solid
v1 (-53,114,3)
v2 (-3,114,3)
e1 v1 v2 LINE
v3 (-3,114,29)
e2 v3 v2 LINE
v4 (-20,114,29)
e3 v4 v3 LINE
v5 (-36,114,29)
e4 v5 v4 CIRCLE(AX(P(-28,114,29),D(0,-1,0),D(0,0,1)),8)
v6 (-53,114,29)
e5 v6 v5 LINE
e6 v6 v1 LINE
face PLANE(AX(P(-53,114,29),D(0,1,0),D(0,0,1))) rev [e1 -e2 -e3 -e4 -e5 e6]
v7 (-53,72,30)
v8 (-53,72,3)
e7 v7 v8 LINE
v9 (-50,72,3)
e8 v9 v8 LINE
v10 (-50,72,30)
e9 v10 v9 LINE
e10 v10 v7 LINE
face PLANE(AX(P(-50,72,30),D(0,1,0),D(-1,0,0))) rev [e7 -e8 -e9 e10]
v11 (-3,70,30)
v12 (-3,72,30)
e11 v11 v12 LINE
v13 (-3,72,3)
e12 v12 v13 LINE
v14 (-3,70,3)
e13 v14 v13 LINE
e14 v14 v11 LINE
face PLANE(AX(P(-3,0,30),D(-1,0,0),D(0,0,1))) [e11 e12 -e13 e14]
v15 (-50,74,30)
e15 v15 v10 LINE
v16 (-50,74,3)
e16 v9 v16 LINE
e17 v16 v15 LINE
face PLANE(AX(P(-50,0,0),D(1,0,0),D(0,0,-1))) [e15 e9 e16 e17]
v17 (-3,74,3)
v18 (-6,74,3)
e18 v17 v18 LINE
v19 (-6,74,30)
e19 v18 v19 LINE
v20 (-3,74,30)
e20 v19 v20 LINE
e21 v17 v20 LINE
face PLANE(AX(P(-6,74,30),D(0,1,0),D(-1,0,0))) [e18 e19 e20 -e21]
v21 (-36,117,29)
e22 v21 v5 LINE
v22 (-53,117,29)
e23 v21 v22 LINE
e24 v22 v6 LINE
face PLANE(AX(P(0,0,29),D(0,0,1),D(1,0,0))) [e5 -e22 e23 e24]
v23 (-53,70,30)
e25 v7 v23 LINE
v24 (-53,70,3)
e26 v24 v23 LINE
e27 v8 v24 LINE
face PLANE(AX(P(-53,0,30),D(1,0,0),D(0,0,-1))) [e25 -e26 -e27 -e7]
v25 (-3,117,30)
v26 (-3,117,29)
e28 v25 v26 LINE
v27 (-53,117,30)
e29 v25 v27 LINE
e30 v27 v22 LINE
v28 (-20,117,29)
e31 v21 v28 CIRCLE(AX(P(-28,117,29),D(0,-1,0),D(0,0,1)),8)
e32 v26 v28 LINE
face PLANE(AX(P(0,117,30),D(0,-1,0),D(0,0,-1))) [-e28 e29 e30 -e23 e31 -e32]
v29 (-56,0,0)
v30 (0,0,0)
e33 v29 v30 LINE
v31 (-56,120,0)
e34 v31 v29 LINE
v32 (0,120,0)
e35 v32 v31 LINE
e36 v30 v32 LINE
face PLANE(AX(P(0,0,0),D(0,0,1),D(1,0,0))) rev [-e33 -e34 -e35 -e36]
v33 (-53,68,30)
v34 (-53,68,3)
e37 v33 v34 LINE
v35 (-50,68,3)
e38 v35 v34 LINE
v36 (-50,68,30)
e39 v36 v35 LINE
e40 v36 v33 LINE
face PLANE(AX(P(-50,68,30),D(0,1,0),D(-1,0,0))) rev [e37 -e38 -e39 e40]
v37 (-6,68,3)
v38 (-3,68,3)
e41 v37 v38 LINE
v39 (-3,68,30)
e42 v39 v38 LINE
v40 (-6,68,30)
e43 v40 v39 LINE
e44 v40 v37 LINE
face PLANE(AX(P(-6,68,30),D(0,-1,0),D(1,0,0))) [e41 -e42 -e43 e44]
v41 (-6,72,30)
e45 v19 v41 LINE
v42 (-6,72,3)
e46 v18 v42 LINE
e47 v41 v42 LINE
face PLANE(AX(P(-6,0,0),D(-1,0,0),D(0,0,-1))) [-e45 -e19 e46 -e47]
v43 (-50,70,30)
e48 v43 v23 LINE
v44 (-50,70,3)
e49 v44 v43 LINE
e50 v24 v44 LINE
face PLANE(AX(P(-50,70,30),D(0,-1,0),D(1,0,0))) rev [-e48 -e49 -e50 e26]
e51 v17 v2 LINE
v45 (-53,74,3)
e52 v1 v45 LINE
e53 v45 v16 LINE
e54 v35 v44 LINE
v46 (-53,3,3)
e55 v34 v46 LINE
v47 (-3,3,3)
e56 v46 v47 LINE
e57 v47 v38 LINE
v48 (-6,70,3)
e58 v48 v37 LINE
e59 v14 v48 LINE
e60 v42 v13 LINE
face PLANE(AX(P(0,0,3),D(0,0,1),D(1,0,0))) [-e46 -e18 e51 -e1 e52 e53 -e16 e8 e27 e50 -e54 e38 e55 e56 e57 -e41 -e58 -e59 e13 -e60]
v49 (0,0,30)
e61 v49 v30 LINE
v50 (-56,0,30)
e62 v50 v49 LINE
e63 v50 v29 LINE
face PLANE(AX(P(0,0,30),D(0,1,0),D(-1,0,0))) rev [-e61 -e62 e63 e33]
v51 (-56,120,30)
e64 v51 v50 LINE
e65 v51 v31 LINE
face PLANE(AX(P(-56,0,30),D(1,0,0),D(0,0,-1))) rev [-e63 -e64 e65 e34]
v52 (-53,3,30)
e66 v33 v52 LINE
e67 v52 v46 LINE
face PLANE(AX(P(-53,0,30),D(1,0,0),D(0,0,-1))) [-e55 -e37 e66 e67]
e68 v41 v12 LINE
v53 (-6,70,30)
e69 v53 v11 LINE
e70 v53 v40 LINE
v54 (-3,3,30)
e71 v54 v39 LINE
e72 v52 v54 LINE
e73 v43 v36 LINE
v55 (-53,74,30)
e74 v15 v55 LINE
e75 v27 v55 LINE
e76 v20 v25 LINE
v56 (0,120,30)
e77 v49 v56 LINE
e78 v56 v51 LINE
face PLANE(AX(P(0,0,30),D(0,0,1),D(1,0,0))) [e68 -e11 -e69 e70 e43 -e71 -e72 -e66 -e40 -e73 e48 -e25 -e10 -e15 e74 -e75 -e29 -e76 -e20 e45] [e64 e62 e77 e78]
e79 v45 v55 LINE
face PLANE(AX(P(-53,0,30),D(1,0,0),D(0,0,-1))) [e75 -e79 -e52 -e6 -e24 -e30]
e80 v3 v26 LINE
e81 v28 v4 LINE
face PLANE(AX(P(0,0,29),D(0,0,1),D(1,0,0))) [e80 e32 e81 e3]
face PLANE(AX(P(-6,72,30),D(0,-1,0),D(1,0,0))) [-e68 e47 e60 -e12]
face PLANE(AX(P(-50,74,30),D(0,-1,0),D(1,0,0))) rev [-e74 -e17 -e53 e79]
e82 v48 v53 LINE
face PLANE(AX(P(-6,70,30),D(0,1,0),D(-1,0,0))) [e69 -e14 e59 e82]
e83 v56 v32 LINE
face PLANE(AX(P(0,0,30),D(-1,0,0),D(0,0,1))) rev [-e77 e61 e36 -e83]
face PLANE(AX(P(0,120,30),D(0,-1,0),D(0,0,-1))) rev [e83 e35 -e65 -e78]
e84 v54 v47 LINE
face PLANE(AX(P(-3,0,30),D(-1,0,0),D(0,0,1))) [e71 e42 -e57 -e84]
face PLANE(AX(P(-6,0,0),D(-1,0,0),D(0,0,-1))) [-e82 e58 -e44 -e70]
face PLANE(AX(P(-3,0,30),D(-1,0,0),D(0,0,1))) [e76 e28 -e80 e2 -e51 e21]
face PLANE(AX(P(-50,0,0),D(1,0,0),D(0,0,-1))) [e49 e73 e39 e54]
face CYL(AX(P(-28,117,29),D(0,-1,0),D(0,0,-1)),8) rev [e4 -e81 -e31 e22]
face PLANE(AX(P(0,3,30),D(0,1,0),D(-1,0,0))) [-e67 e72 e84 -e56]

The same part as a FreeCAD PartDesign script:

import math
import FreeCAD as App
import Part
import Sketcher


def faces_at(feature, points):
    """Names of the faces that lie closest to the given points."""
    faces = feature.Shape.Faces
    near = lambda p: min(range(len(faces)), key=lambda i: faces[i].distToShape(Part.Vertex(*p))[0])
    return sorted({f"Face{near(p) + 1}" for p in points})

doc = App.newDocument("Part")
body = doc.addObject("PartDesign::Body", "Body")

# Sketch on XY plane
sketch1 = doc.addObject("Sketcher::SketchObject", "Sketch")
body.addObject(sketch1)
sketch1.AttachmentSupport = (doc.XY_Plane, [""])
sketch1.MapMode = "FlatFace"
sketch1.addGeometry(Part.LineSegment(App.Vector(-56, 120, 0), App.Vector(-56, 0, 0)), False)
sketch1.addGeometry(Part.LineSegment(App.Vector(-56, 0, 0), App.Vector(0, 0, 0)), False)
sketch1.addGeometry(Part.LineSegment(App.Vector(0, 0, 0), App.Vector(0, 120, 0)), False)
sketch1.addGeometry(Part.LineSegment(App.Vector(0, 120, 0), App.Vector(-56, 120, 0)), False)
sketch1.addConstraint(Sketcher.Constraint("Coincident", 0, 2, 1, 1))
sketch1.addConstraint(Sketcher.Constraint("Coincident", 1, 2, 2, 1))
sketch1.addConstraint(Sketcher.Constraint("Coincident", 2, 2, 3, 1))
sketch1.addConstraint(Sketcher.Constraint("Coincident", 3, 2, 0, 1))
sketch1.addConstraint(Sketcher.Constraint("Vertical", 0))
sketch1.addConstraint(Sketcher.Constraint("Horizontal", 1))
sketch1.addConstraint(Sketcher.Constraint("Vertical", 2))
sketch1.addConstraint(Sketcher.Constraint("Horizontal", 3))
sketch1.addConstraint(Sketcher.Constraint("Coincident", 1, 2, -1, 1))
sketch1.addConstraint(Sketcher.Constraint("DistanceX", 1, 1, 1, 2, 56.0))
sketch1.addConstraint(Sketcher.Constraint("DistanceY", 0, 2, 0, 1, 120.0))
pad1 = doc.addObject("PartDesign::Pad", "Pad")
body.addObject(pad1)
pad1.Profile = sketch1
pad1.Length = 30
doc.recompute()

thickness = doc.addObject("PartDesign::Thickness", "Thickness")
body.addObject(thickness)
thickness.Base = (pad1, faces_at(pad1, [(-28, 60, 30)]))
thickness.Value = 3
thickness.Reversed = True
thickness.Join = "Intersection"

# Sketch on XY plane
sketch2 = doc.addObject("Sketcher::SketchObject", "Sketch001")
body.addObject(sketch2)
sketch2.AttachmentSupport = (doc.XY_Plane, [""])
sketch2.MapMode = "FlatFace"
sketch2.AttachmentOffset = App.Placement(App.Vector(0, 0, 3), App.Rotation())
sketch2.addGeometry(Part.LineSegment(App.Vector(-53, 117, 0), App.Vector(-53, 114, 0)), False)
sketch2.addGeometry(Part.LineSegment(App.Vector(-53, 114, 0), App.Vector(-3, 114, 0)), False)
sketch2.addGeometry(Part.LineSegment(App.Vector(-3, 114, 0), App.Vector(-3, 117, 0)), False)
sketch2.addGeometry(Part.LineSegment(App.Vector(-3, 117, 0), App.Vector(-53, 117, 0)), False)
sketch2.addConstraint(Sketcher.Constraint("Coincident", 0, 2, 1, 1))
sketch2.addConstraint(Sketcher.Constraint("Coincident", 1, 2, 2, 1))
sketch2.addConstraint(Sketcher.Constraint("Coincident", 2, 2, 3, 1))
sketch2.addConstraint(Sketcher.Constraint("Coincident", 3, 2, 0, 1))
sketch2.addConstraint(Sketcher.Constraint("Vertical", 0))
sketch2.addConstraint(Sketcher.Constraint("Horizontal", 1))
sketch2.addConstraint(Sketcher.Constraint("Vertical", 2))
sketch2.addConstraint(Sketcher.Constraint("Horizontal", 3))
sketch2.addConstraint(Sketcher.Constraint("DistanceX", 1, 1, 1, 2, 50.0))
sketch2.addConstraint(Sketcher.Constraint("DistanceY", 0, 2, 0, 1, 3.0))
sketch2.addConstraint(Sketcher.Constraint("DistanceX", 0, 2, -1, 1, 53.0))
sketch2.addConstraint(Sketcher.Constraint("DistanceY", -1, 1, 0, 2, 114.0))
pad2 = doc.addObject("PartDesign::Pad", "Pad001")
body.addObject(pad2)
pad2.Profile = sketch2
pad2.Length = 26

# Sketch on XZ plane
sketch3 = doc.addObject("Sketcher::SketchObject", "Sketch002")
body.addObject(sketch3)
sketch3.AttachmentSupport = (doc.XZ_Plane, [""])
sketch3.MapMode = "FlatFace"
sketch3.AttachmentOffset = App.Placement(App.Vector(0, 0, -114), App.Rotation())
sketch3.addGeometry(Part.LineSegment(App.Vector(-20, 29, 0), App.Vector(-36, 29, 0)), False)
sketch3.addGeometry(Part.ArcOfCircle(Part.Circle(App.Vector(-28, 29, 0), App.Vector(0, 0, 1), 8), math.radians(180), math.radians(360)), False)
sketch3.addConstraint(Sketcher.Constraint("Coincident", 0, 1, 1, 2))
sketch3.addConstraint(Sketcher.Constraint("Coincident", 1, 1, 0, 2))
sketch3.addConstraint(Sketcher.Constraint("Horizontal", 0))
sketch3.addConstraint(Sketcher.Constraint("Horizontal", 1, 3, 0, 1))
sketch3.addConstraint(Sketcher.Constraint("Radius", 1, 8.0))
sketch3.addConstraint(Sketcher.Constraint("DistanceX", 1, 3, -1, 1, 28.0))
sketch3.addConstraint(Sketcher.Constraint("DistanceY", -1, 1, 1, 3, 29.0))
pocket1 = doc.addObject("PartDesign::Pocket", "Pocket")
body.addObject(pocket1)
pocket1.Profile = sketch3
pocket1.Length = 3

# Sketch on YZ plane
sketch4 = doc.addObject("Sketcher::SketchObject", "Sketch003")
body.addObject(sketch4)
sketch4.AttachmentSupport = (doc.YZ_Plane, [""])
sketch4.MapMode = "FlatFace"
sketch4.AttachmentOffset = App.Placement(App.Vector(0, 0, -53), App.Rotation())
sketch4.addGeometry(Part.LineSegment(App.Vector(74, 30, 0), App.Vector(72, 30, 0)), False)
sketch4.addGeometry(Part.LineSegment(App.Vector(72, 30, 0), App.Vector(72, 0, 0)), False)
sketch4.addGeometry(Part.LineSegment(App.Vector(72, 0, 0), App.Vector(74, 0, 0)), False)
sketch4.addGeometry(Part.LineSegment(App.Vector(74, 0, 0), App.Vector(74, 30, 0)), False)
sketch4.addConstraint(Sketcher.Constraint("Coincident", 0, 2, 1, 1))
sketch4.addConstraint(Sketcher.Constraint("Coincident", 1, 2, 2, 1))
sketch4.addConstraint(Sketcher.Constraint("Coincident", 2, 2, 3, 1))
sketch4.addConstraint(Sketcher.Constraint("Coincident", 3, 2, 0, 1))
sketch4.addConstraint(Sketcher.Constraint("Horizontal", 0))
sketch4.addConstraint(Sketcher.Constraint("Vertical", 1))
sketch4.addConstraint(Sketcher.Constraint("Horizontal", 2))
sketch4.addConstraint(Sketcher.Constraint("Vertical", 3))
sketch4.addConstraint(Sketcher.Constraint("PointOnObject", 1, 2, -1))
sketch4.addConstraint(Sketcher.Constraint("DistanceX", 0, 2, 0, 1, 2.0))
sketch4.addConstraint(Sketcher.Constraint("DistanceY", 1, 2, 1, 1, 30.0))
sketch4.addConstraint(Sketcher.Constraint("DistanceX", -1, 1, 0, 2, 72.0))
pad3 = doc.addObject("PartDesign::Pad", "Pad002")
body.addObject(pad3)
pad3.Profile = sketch4
pad3.Length = 3

# Sketch on YZ plane
sketch5 = doc.addObject("Sketcher::SketchObject", "Sketch004")
body.addObject(sketch5)
sketch5.AttachmentSupport = (doc.YZ_Plane, [""])
sketch5.MapMode = "FlatFace"
sketch5.AttachmentOffset = App.Placement(App.Vector(0, 0, -53), App.Rotation())
sketch5.addGeometry(Part.LineSegment(App.Vector(70, 30, 0), App.Vector(68, 30, 0)), False)
sketch5.addGeometry(Part.LineSegment(App.Vector(68, 30, 0), App.Vector(68, 0, 0)), False)
sketch5.addGeometry(Part.LineSegment(App.Vector(68, 0, 0), App.Vector(70, 0, 0)), False)
sketch5.addGeometry(Part.LineSegment(App.Vector(70, 0, 0), App.Vector(70, 30, 0)), False)
sketch5.addConstraint(Sketcher.Constraint("Coincident", 0, 2, 1, 1))
sketch5.addConstraint(Sketcher.Constraint("Coincident", 1, 2, 2, 1))
sketch5.addConstraint(Sketcher.Constraint("Coincident", 2, 2, 3, 1))
sketch5.addConstraint(Sketcher.Constraint("Coincident", 3, 2, 0, 1))
sketch5.addConstraint(Sketcher.Constraint("Horizontal", 0))
sketch5.addConstraint(Sketcher.Constraint("Vertical", 1))
sketch5.addConstraint(Sketcher.Constraint("Horizontal", 2))
sketch5.addConstraint(Sketcher.Constraint("Vertical", 3))
sketch5.addConstraint(Sketcher.Constraint("PointOnObject", 1, 2, -1))
sketch5.addConstraint(Sketcher.Constraint("DistanceX", 0, 2, 0, 1, 2.0))
sketch5.addConstraint(Sketcher.Constraint("DistanceY", 1, 2, 1, 1, 30.0))
sketch5.addConstraint(Sketcher.Constraint("DistanceX", -1, 1, 0, 2, 68.0))
pad4 = doc.addObject("PartDesign::Pad", "Pad003")
body.addObject(pad4)
pad4.Profile = sketch5
pad4.Length = 3
doc.recompute()

datumplane = doc.addObject("PartDesign::Plane", "DatumPlane")
body.addObject(datumplane)
datumplane.AttachmentSupport = (doc.YZ_Plane, [""])
datumplane.MapMode = "FlatFace"
datumplane.AttachmentOffset = App.Placement(App.Vector(0, 0, -28), App.Rotation())
mirrored = doc.addObject("PartDesign::Mirrored", "Mirrored")
body.addObject(mirrored)
mirrored.Originals = [pad3, pad4]
mirrored.MirrorPlane = (datumplane, [""])
body.Tip = mirrored

doc.recompute()
